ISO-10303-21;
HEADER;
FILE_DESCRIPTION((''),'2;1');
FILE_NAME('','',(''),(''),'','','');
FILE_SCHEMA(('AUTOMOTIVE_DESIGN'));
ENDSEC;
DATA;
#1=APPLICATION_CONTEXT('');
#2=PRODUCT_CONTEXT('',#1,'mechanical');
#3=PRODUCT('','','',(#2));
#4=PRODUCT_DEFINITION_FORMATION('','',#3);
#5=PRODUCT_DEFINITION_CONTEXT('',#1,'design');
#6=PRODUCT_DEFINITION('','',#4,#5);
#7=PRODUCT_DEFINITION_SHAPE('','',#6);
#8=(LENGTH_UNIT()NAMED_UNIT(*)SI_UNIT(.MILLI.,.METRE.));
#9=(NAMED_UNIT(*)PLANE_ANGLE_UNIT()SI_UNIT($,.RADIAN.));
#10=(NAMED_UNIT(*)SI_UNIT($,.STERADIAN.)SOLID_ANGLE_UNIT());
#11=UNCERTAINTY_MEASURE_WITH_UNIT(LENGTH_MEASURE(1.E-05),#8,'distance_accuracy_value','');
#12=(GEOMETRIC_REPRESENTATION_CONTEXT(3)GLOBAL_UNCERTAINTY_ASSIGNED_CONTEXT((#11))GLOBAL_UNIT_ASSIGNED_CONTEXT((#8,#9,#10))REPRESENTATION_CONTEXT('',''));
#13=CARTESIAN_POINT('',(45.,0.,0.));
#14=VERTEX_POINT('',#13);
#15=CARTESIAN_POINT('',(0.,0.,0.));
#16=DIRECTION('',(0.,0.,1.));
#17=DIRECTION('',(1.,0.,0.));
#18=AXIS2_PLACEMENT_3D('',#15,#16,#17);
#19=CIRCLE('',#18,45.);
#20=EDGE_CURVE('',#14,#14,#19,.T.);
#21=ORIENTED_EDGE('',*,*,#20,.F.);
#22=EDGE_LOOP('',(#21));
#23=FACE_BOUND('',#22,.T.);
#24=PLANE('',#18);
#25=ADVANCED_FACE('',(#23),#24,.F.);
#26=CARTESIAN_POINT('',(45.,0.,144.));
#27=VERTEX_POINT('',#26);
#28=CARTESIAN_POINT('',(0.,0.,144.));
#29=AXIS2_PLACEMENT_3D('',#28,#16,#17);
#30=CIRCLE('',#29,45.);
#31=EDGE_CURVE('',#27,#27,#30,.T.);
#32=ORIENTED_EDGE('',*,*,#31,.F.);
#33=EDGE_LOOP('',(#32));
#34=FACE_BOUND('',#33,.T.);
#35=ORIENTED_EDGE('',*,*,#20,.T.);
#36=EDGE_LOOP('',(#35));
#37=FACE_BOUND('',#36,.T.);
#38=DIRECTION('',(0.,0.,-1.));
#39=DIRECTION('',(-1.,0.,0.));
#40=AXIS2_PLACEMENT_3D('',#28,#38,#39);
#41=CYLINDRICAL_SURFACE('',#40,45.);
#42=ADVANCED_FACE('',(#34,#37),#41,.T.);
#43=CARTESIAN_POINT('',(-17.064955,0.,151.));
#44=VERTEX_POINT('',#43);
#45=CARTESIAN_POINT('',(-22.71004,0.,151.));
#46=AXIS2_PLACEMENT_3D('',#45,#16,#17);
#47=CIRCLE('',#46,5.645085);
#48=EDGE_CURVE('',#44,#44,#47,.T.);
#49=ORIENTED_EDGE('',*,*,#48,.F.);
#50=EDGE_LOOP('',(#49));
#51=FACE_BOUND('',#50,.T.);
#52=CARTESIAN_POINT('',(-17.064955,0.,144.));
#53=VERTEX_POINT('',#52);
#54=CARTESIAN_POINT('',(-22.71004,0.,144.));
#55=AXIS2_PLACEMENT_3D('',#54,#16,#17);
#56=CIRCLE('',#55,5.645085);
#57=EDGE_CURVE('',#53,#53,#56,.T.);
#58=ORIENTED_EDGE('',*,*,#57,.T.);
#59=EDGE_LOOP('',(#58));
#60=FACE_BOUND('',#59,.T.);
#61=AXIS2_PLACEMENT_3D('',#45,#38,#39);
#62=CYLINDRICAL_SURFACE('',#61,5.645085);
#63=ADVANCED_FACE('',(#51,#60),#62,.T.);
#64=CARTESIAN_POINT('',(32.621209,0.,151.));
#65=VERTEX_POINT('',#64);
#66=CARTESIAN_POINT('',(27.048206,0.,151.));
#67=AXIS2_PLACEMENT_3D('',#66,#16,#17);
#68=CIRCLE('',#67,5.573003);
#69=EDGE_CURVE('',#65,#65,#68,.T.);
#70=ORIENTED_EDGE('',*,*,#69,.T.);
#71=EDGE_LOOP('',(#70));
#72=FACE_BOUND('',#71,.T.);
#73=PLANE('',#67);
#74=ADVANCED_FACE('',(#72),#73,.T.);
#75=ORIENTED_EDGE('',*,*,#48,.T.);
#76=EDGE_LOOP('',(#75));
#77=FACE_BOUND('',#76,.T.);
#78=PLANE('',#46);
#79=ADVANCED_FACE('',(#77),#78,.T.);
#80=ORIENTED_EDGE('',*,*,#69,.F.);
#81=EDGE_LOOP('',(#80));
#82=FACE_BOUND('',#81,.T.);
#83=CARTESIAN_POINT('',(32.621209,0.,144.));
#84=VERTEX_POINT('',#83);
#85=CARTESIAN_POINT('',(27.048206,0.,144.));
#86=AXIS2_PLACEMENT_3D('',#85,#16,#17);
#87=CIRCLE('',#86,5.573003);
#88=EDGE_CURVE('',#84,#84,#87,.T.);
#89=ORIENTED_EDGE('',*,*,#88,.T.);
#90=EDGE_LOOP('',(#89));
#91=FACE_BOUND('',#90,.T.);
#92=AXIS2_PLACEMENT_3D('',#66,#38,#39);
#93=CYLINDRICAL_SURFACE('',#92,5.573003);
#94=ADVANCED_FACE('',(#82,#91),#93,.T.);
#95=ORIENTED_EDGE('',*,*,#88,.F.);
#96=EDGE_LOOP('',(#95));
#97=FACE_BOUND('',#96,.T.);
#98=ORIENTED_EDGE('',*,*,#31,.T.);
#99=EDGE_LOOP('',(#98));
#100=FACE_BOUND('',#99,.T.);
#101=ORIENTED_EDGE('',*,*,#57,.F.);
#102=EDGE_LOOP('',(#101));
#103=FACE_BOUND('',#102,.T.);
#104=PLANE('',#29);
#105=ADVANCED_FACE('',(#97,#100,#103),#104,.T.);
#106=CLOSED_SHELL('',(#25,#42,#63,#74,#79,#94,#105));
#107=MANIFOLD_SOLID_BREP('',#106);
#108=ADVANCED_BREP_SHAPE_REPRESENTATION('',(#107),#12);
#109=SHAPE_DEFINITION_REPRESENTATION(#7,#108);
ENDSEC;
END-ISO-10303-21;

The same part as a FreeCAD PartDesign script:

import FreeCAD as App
import Part
import Sketcher
from FreeCAD import Vector
Q = App.Units.Quantity

doc = App.newDocument("Part")
body = doc.addObject("PartDesign::Body", "Body")

sketch1 = body.newObject("Sketcher::SketchObject", "Sketch")
sketch1.AttachmentSupport = (doc.getObject("XY_Plane"), [""])
sketch1.MapMode = "FlatFace"
sketch1.addGeometry(Part.Circle(Vector(0, 0, 0), Vector(0, 0, 1), 45), False)
sketch1.addConstraint([
    Sketcher.Constraint("Coincident", 0, 3, -1, 1),
    Sketcher.Constraint("Diameter", 0, Q("90 mm")),
])
pad1 = body.newObject("PartDesign::Pad", "Pad")
pad1.Profile = sketch1
pad1.Length = 144

sketch2 = body.newObject("Sketcher::SketchObject", "Sketch001")
sketch2.AttachmentSupport = (doc.getObject("XY_Plane"), [""])
sketch2.MapMode = "FlatFace"
sketch2.AttachmentOffset = App.Placement(Vector(0, 0, 144), App.Rotation())
sketch2.addGeometry([
    Part.Circle(Vector(-23, 0, 0), Vector(0, 0, 1), 6),
    Part.Circle(Vector(27, 0, 0), Vector(0, 0, 1), 6),
], False)
sketch2.addConstraint([
    Sketcher.Constraint("PointOnObject", 0, 3, -1),
    Sketcher.Constraint("PointOnObject", 1, 3, -1),
    Sketcher.Constraint("Diameter", 0, Q("11.29017 mm")),
    Sketcher.Constraint("Diameter", 1, Q("11.146005 mm")),
    Sketcher.Constraint("DistanceX", 0, 3, -1, 1, Q("22.71004 mm")),
    Sketcher.Constraint("DistanceX", -1, 1, 1, 3, Q("27.048206 mm")),
])
pad2 = body.newObject("PartDesign::Pad", "Pad001")
pad2.Profile = sketch2
pad2.Length = 7

doc.recompute()
